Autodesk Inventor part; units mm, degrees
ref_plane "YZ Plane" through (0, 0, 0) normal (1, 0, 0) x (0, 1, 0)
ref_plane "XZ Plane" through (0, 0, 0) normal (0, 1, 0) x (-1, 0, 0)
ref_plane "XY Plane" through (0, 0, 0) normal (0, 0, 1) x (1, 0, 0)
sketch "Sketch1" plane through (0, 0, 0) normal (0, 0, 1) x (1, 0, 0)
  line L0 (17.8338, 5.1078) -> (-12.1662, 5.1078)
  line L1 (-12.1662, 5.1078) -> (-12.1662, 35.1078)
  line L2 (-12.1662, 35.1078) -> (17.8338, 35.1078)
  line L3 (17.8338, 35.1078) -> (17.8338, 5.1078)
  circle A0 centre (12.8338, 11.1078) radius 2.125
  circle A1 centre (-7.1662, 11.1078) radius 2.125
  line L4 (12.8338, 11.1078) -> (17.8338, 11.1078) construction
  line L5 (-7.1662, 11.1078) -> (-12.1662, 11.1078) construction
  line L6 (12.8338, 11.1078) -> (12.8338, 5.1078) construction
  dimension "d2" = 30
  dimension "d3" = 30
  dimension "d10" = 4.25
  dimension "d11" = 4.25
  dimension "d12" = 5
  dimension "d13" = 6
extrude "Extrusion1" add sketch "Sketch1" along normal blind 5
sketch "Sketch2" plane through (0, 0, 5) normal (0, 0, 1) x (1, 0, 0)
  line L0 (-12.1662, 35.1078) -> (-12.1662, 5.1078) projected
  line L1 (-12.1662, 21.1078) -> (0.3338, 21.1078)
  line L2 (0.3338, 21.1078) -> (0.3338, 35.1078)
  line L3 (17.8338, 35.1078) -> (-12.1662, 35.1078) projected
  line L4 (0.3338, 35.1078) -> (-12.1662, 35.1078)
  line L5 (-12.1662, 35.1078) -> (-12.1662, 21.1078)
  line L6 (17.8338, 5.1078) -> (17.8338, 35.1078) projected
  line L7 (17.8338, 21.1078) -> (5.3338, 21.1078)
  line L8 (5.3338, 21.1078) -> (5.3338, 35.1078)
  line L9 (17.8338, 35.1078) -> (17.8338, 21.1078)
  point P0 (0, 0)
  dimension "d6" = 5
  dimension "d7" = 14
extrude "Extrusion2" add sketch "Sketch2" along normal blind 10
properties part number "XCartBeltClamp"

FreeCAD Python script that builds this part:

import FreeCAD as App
import Part
import Sketcher

V = App.Vector
Q = App.Units.Quantity

doc = App.newDocument("Part")
body = doc.addObject("PartDesign::Body", "Body")

# Sketch on XY plane
sketch1 = body.newObject("Sketcher::SketchObject", "Sketch")
sketch1.AttachmentSupport = (doc.getObject("XY_Plane"), [""])
sketch1.MapMode = "FlatFace"
sketch1.addGeometry([
    Part.LineSegment(V(-12.2, 5.1, 0), V(17.8, 5.1, 0)),  # 0
    Part.LineSegment(V(17.8, 5.1, 0), V(17.8, 35.1, 0)),  # 1
    Part.LineSegment(V(17.8, 35.1, 0), V(-12.2, 35.1, 0)),  # 2
    Part.LineSegment(V(-12.2, 35.1, 0), V(-12.2, 5.1, 0)),  # 3
    Part.Circle(V(-7.2, 11.1, 0), V(0, 0, 1), 2.1),  # 4
    Part.Circle(V(12.8, 11.1, 0), V(0, 0, 1), 2.1),  # 5
], False)
sketch1.addConstraint([
    Sketcher.Constraint("Coincident", 0, 2, 1, 1),
    Sketcher.Constraint("Coincident", 1, 2, 2, 1),
    Sketcher.Constraint("Coincident", 2, 2, 3, 1),
    Sketcher.Constraint("Coincident", 3, 2, 0, 1),
    Sketcher.Constraint("Horizontal", 0),
    Sketcher.Constraint("Vertical", 1),
    Sketcher.Constraint("Horizontal", 2),
    Sketcher.Constraint("Vertical", 3),
    Sketcher.Constraint("Equal", 4, 5),
    Sketcher.Constraint("Horizontal", 4, 3, 5, 3),
    Sketcher.Constraint("Equal", 2, 1),
    Sketcher.Constraint("Diameter", 4, Q("4.25 mm")),
    Sketcher.Constraint("DistanceX", 0, 1, 0, 2, Q("30 mm")),
    Sketcher.Constraint("DistanceX", 5, 3, 0, 2, Q("5 mm")),
    Sketcher.Constraint("DistanceY", 0, 2, 5, 3, Q("6 mm")),
    Sketcher.Constraint("DistanceX", 2, 2, 4, 3, Q("5 mm")),
    Sketcher.Constraint("DistanceX", 4, 3, -1, 1, Q("7.1662 mm")),
    Sketcher.Constraint("DistanceY", -1, 1, 4, 3, Q("11.1078 mm")),
])
pad1 = body.newObject("PartDesign::Pad", "Pad")
pad1.Profile = sketch1
pad1.Length = 5

# Sketch on XY plane
sketch2 = body.newObject("Sketcher::SketchObject", "Sketch001")
sketch2.AttachmentSupport = (doc.getObject("XY_Plane"), [""])
sketch2.MapMode = "FlatFace"
sketch2.AttachmentOffset = App.Placement(V(0, 0, 5), App.Rotation())
sketch2.addGeometry([
    Part.LineSegment(V(0, 35, 0), V(-12, 35, 0)),  # 0
    Part.LineSegment(V(-12, 35, 0), V(-12, 21, 0)),  # 1
    Part.LineSegment(V(-12, 21, 0), V(0, 21, 0)),  # 2
    Part.LineSegment(V(0, 21, 0), V(0, 35, 0)),  # 3
    Part.LineSegment(V(18, 35, 0), V(5, 35, 0)),  # 4
    Part.LineSegment(V(5, 35, 0), V(5, 21, 0)),  # 5
    Part.LineSegment(V(5, 21, 0), V(18, 21, 0)),  # 6
    Part.LineSegment(V(18, 21, 0), V(18, 35, 0)),  # 7
], False)
sketch2.addConstraint([
    Sketcher.Constraint("Coincident", 0, 2, 1, 1),
    Sketcher.Constraint("Coincident", 1, 2, 2, 1),
    Sketcher.Constraint("Coincident", 2, 2, 3, 1),
    Sketcher.Constraint("Coincident", 3, 2, 0, 1),
    Sketcher.Constraint("Coincident", 4, 2, 5, 1),
    Sketcher.Constraint("Coincident", 5, 2, 6, 1),
    Sketcher.Constraint("Coincident", 6, 2, 7, 1),
    Sketcher.Constraint("Coincident", 7, 2, 4, 1),
    Sketcher.Constraint("Horizontal", 0),
    Sketcher.Constraint("Vertical", 1),
    Sketcher.Constraint("Horizontal", 2),
    Sketcher.Constraint("Vertical", 3),
    Sketcher.Constraint("Horizontal", 4),
    Sketcher.Constraint("Vertical", 5),
    Sketcher.Constraint("Horizontal", 6),
    Sketcher.Constraint("Vertical", 7),
    Sketcher.Constraint("Horizontal", 3, 2, 4, 2),
    Sketcher.Constraint("Horizontal", 2, 2, 5, 2),
    Sketcher.Constraint("Equal", 2, 4),
    Sketcher.Constraint("DistanceY", 1, 2, 1, 1, Q("14 mm")),
    Sketcher.Constraint("DistanceX", 3, 2, 4, 2, Q("5 mm")),
    Sketcher.Constraint("DistanceX", 0, 2, 0, 1, Q("12.5 mm")),
    Sketcher.Constraint("DistanceX", 0, 2, -1, 1, Q("12.1662 mm")),
    Sketcher.Constraint("DistanceY", -1, 1, 0, 2, Q("35.1078 mm")),
])
pad2 = body.newObject("PartDesign::Pad", "Pad001")
pad2.Profile = sketch2
pad2.Length = 10

doc.recompute()
